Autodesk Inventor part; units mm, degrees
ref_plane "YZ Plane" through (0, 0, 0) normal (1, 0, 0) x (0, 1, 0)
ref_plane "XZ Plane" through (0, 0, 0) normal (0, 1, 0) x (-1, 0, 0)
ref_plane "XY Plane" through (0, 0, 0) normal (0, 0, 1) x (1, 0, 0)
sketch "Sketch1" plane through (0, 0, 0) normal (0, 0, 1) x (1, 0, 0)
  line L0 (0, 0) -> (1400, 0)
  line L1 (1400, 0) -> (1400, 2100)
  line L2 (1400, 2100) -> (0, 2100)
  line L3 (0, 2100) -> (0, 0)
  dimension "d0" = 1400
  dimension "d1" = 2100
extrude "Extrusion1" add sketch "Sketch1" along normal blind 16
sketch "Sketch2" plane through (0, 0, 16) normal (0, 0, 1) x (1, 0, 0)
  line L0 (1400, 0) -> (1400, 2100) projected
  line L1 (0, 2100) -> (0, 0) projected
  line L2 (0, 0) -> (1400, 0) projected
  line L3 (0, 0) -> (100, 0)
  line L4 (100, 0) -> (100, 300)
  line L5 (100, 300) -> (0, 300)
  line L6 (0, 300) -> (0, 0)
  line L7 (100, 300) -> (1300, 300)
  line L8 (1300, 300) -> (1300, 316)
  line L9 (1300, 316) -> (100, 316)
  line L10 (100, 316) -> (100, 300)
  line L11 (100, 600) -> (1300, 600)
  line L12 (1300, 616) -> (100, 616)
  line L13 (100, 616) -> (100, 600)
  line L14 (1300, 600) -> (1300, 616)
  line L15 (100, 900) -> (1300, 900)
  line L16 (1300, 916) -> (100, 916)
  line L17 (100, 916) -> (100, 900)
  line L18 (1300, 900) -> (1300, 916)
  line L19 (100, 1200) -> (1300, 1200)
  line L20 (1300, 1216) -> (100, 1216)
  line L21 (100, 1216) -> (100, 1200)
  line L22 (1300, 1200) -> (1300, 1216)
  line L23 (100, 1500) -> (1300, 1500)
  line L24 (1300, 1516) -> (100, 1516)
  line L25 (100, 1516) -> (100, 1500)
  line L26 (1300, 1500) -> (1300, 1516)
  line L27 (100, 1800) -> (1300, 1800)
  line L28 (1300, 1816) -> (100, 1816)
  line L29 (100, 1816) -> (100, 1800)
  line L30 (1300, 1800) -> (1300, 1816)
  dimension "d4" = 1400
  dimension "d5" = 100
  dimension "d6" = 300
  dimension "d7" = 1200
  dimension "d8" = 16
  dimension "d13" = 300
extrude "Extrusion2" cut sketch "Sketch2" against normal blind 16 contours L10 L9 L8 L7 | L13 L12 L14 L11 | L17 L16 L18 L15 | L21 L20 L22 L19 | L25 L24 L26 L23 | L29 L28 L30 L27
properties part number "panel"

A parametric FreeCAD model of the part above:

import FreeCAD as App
import Part
import Sketcher
from FreeCAD import Vector
Q = App.Units.Quantity

doc = App.newDocument("Part")
body = doc.addObject("PartDesign::Body", "Body")

sketch1 = body.newObject("Sketcher::SketchObject", "Sketch")
sketch1.AttachmentSupport = (doc.getObject("XY_Plane"), [""])
sketch1.MapMode = "FlatFace"
sketch1.addGeometry(Part.LineSegment(Vector(0, 2100, 0), Vector(0, 0, 0)), False)
sketch1.addGeometry(Part.LineSegment(Vector(0, 0, 0), Vector(1400, 0, 0)), False)
sketch1.addGeometry(Part.LineSegment(Vector(1400, 0, 0), Vector(1400, 2100, 0)), False)
sketch1.addGeometry(Part.LineSegment(Vector(1400, 2100, 0), Vector(0, 2100, 0)), False)
sketch1.addConstraint(Sketcher.Constraint("Coincident", 0, 2, 1, 1))
sketch1.addConstraint(Sketcher.Constraint("Coincident", 1, 2, 2, 1))
sketch1.addConstraint(Sketcher.Constraint("Coincident", 2, 2, 3, 1))
sketch1.addConstraint(Sketcher.Constraint("Coincident", 3, 2, 0, 1))
sketch1.addConstraint(Sketcher.Constraint("Vertical", 0))
sketch1.addConstraint(Sketcher.Constraint("Horizontal", 1))
sketch1.addConstraint(Sketcher.Constraint("Vertical", 2))
sketch1.addConstraint(Sketcher.Constraint("Horizontal", 3))
sketch1.addConstraint(Sketcher.Constraint("Coincident", 0, 2, -1, 1))
sketch1.addConstraint(Sketcher.Constraint("DistanceX", 1, 1, 1, 2, Q("1400 mm")))
sketch1.addConstraint(Sketcher.Constraint("DistanceY", 0, 2, 0, 1, Q("2100 mm")))
pad1 = body.newObject("PartDesign::Pad", "Pad")
pad1.Profile = sketch1
pad1.Length = 16

sketch2 = body.newObject("Sketcher::SketchObject", "Sketch001")
sketch2.AttachmentSupport = (doc.getObject("XY_Plane"), [""])
sketch2.MapMode = "FlatFace"
sketch2.AttachmentOffset = App.Placement(Vector(0, 0, 16), App.Rotation())
sketch2.addGeometry(Part.LineSegment(Vector(100, 316, 0), Vector(100, 300, 0)), False)
sketch2.addGeometry(Part.LineSegment(Vector(100, 300, 0), Vector(1300, 300, 0)), False)
sketch2.addGeometry(Part.LineSegment(Vector(1300, 300, 0), Vector(1300, 316, 0)), False)
sketch2.addGeometry(Part.LineSegment(Vector(1300, 316, 0), Vector(100, 316, 0)), False)
sketch2.addGeometry(Part.LineSegment(Vector(100, 616, 0), Vector(100, 600, 0)), False)
sketch2.addGeometry(Part.LineSegment(Vector(100, 600, 0), Vector(1300, 600, 0)), False)
sketch2.addGeometry(Part.LineSegment(Vector(1300, 600, 0), Vector(1300, 616, 0)), False)
sketch2.addGeometry(Part.LineSegment(Vector(1300, 616, 0), Vector(100, 616, 0)), False)
sketch2.addGeometry(Part.LineSegment(Vector(100, 916, 0), Vector(100, 900, 0)), False)
sketch2.addGeometry(Part.LineSegment(Vector(100, 900, 0), Vector(1300, 900, 0)), False)
sketch2.addGeometry(Part.LineSegment(Vector(1300, 900, 0), Vector(1300, 916, 0)), False)
sketch2.addGeometry(Part.LineSegment(Vector(1300, 916, 0), Vector(100, 916, 0)), False)
sketch2.addGeometry(Part.LineSegment(Vector(100, 1216, 0), Vector(100, 1200, 0)), False)
sketch2.addGeometry(Part.LineSegment(Vector(100, 1200, 0), Vector(1300, 1200, 0)), False)
sketch2.addGeometry(Part.LineSegment(Vector(1300, 1200, 0), Vector(1300, 1216, 0)), False)
sketch2.addGeometry(Part.LineSegment(Vector(1300, 1216, 0), Vector(100, 1216, 0)), False)
sketch2.addGeometry(Part.LineSegment(Vector(100, 1516, 0), Vector(100, 1500, 0)), False)
sketch2.addGeometry(Part.LineSegment(Vector(100, 1500, 0), Vector(1300, 1500, 0)), False)
sketch2.addGeometry(Part.LineSegment(Vector(1300, 1500, 0), Vector(1300, 1516, 0)), False)
sketch2.addGeometry(Part.LineSegment(Vector(1300, 1516, 0), Vector(100, 1516, 0)), False)
sketch2.addGeometry(Part.LineSegment(Vector(100, 1816, 0), Vector(100, 1800, 0)), False)
sketch2.addGeometry(Part.LineSegment(Vector(100, 1800, 0), Vector(1300, 1800, 0)), False)
sketch2.addGeometry(Part.LineSegment(Vector(1300, 1800, 0), Vector(1300, 1816, 0)), False)
sketch2.addGeometry(Part.LineSegment(Vector(1300, 1816, 0), Vector(100, 1816, 0)), False)
sketch2.addConstraint(Sketcher.Constraint("Coincident", 0, 2, 1, 1))
sketch2.addConstraint(Sketcher.Constraint("Coincident", 1, 2, 2, 1))
sketch2.addConstraint(Sketcher.Constraint("Coincident", 2, 2, 3, 1))
sketch2.addConstraint(Sketcher.Constraint("Coincident", 3, 2, 0, 1))
sketch2.addConstraint(Sketcher.Constraint("Coincident", 4, 2, 5, 1))
sketch2.addConstraint(Sketcher.Constraint("Coincident", 5, 2, 6, 1))
sketch2.addConstraint(Sketcher.Constraint("Coincident", 6, 2, 7, 1))
sketch2.addConstraint(Sketcher.Constraint("Coincident", 7, 2, 4, 1))
sketch2.addConstraint(Sketcher.Constraint("Coincident", 8, 2, 9, 1))
sketch2.addConstraint(Sketcher.Constraint("Coincident", 9, 2, 10, 1))
sketch2.addConstraint(Sketcher.Constraint("Coincident", 10, 2, 11, 1))
sketch2.addConstraint(Sketcher.Constraint("Coincident", 11, 2, 8, 1))
sketch2.addConstraint(Sketcher.Constraint("Coincident", 12, 2, 13, 1))
sketch2.addConstraint(Sketcher.Constraint("Coincident", 13, 2, 14, 1))
sketch2.addConstraint(Sketcher.Constraint("Coincident", 14, 2, 15, 1))
sketch2.addConstraint(Sketcher.Constraint("Coincident", 15, 2, 12, 1))
sketch2.addConstraint(Sketcher.Constraint("Coincident", 16, 2, 17, 1))
sketch2.addConstraint(Sketcher.Constraint("Coincident", 17, 2, 18, 1))
sketch2.addConstraint(Sketcher.Constraint("Coincident", 18, 2, 19, 1))
sketch2.addConstraint(Sketcher.Constraint("Coincident", 19, 2, 16, 1))
sketch2.addConstraint(Sketcher.Constraint("Coincident", 20, 2, 21, 1))
sketch2.addConstraint(Sketcher.Constraint("Coincident", 21, 2, 22, 1))
sketch2.addConstraint(Sketcher.Constraint("Coincident", 22, 2, 23, 1))
sketch2.addConstraint(Sketcher.Constraint("Coincident", 23, 2, 20, 1))
sketch2.addConstraint(Sketcher.Constraint("Vertical", 0))
sketch2.addConstraint(Sketcher.Constraint("Horizontal", 1))
sketch2.addConstraint(Sketcher.Constraint("Vertical", 2))
sketch2.addConstraint(Sketcher.Constraint("Horizontal", 3))
sketch2.addConstraint(Sketcher.Constraint("Vertical", 4))
sketch2.addConstraint(Sketcher.Constraint("Horizontal", 5))
sketch2.addConstraint(Sketcher.Constraint("Vertical", 6))
sketch2.addConstraint(Sketcher.Constraint("Horizontal", 7))
sketch2.addConstraint(Sketcher.Constraint("Vertical", 8))
sketch2.addConstraint(Sketcher.Constraint("Horizontal", 9))
sketch2.addConstraint(Sketcher.Constraint("Vertical", 10))
sketch2.addConstraint(Sketcher.Constraint("Horizontal", 11))
sketch2.addConstraint(Sketcher.Constraint("Vertical", 12))
sketch2.addConstraint(Sketcher.Constraint("Horizontal", 13))
sketch2.addConstraint(Sketcher.Constraint("Vertical", 14))
sketch2.addConstraint(Sketcher.Constraint("Horizontal", 15))
sketch2.addConstraint(Sketcher.Constraint("Vertical", 16))
sketch2.addConstraint(Sketcher.Constraint("Horizontal", 17))
sketch2.addConstraint(Sketcher.Constraint("Vertical", 18))
sketch2.addConstraint(Sketcher.Constraint("Horizontal", 19))
sketch2.addConstraint(Sketcher.Constraint("Vertical", 20))
sketch2.addConstraint(Sketcher.Constraint("Horizontal", 21))
sketch2.addConstraint(Sketcher.Constraint("Vertical", 22))
sketch2.addConstraint(Sketcher.Constraint("Horizontal", 23))
sketch2.addConstraint(Sketcher.Constraint("Vertical", 3, 2, 4, 2))
sketch2.addConstraint(Sketcher.Constraint("Vertical", 2, 2, 5, 2))
sketch2.addConstraint(Sketcher.Constraint("Vertical", 7, 2, 8, 2))
sketch2.addConstraint(Sketcher.Constraint("Vertical", 6, 2, 9, 2))
sketch2.addConstraint(Sketcher.Constraint("Vertical", 11, 2, 12, 2))
sketch2.addConstraint(Sketcher.Constraint("Vertical", 10, 2, 13, 2))
sketch2.addConstraint(Sketcher.Constraint("Vertical", 15, 2, 16, 2))
sketch2.addConstraint(Sketcher.Constraint("Vertical", 14, 2, 17, 2))
sketch2.addConstraint(Sketcher.Constraint("Vertical", 19, 2, 20, 2))
sketch2.addConstraint(Sketcher.Constraint("Vertical", 18, 2, 21, 2))
sketch2.addConstraint(Sketcher.Constraint("Equal", 2, 4))
sketch2.addConstraint(Sketcher.Constraint("Equal", 6, 8))
sketch2.addConstraint(Sketcher.Constraint("Equal", 10, 12))
sketch2.addConstraint(Sketcher.Constraint("Equal", 14, 16))
sketch2.addConstraint(Sketcher.Constraint("Equal", 18, 20))
sketch2.addConstraint(Sketcher.Constraint("DistanceX", 1, 1, 1, 2, Q("1200 mm")))
sketch2.addConstraint(Sketcher.Constraint("DistanceY", 0, 2, 0, 1, Q("16 mm")))
sketch2.addConstraint(Sketcher.Constraint("DistanceX", -1, 1, 0, 2, Q("100 mm")))
sketch2.addConstraint(Sketcher.Constraint("DistanceY", -1, 1, 0, 2, Q("300 mm")))
sketch2.addConstraint(Sketcher.Constraint("DistanceY", -1, 1, 12, 2, Q("1200 mm")))
sketch2.addConstraint(Sketcher.Constraint("DistanceY", 0, 2, 4, 2, Q("300 mm")))
sketch2.addConstraint(Sketcher.Constraint("DistanceY", 4, 2, 8, 2, Q("300 mm")))
sketch2.addConstraint(Sketcher.Constraint("DistanceY", 12, 2, 16, 2, Q("300 mm")))
sketch2.addConstraint(Sketcher.Constraint("DistanceY", 16, 2, 20, 2, Q("300 mm")))
pocket1 = body.newObject("PartDesign::Pocket", "Pocket")
pocket1.Profile = sketch2
pocket1.Length = 16

doc.recompute()
